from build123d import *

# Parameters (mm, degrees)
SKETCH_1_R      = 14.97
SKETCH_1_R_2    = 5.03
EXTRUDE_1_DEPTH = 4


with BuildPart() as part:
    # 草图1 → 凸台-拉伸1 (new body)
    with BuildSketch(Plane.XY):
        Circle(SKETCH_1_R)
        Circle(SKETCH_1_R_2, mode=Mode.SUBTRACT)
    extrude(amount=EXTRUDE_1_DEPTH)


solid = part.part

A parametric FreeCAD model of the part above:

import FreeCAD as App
import Part
import Sketcher

V = App.Vector

doc = App.newDocument("Part")
params = doc.addObject("Spreadsheet::Sheet", "Params")
for row, (alias, value) in enumerate([
    ("sketch1_diameter", "29.94 mm"),
    ("sketch1_diameter2", "10.06 mm"),
    ("pad1_length", "4 mm"),
], start=1):
    params.set(f"A{row}", alias)
    params.set(f"B{row}", "=" + value)
    params.setAlias(f"B{row}", alias)

body = doc.addObject("PartDesign::Body", "Body")

# Sketch on XY plane
sketch1 = body.newObject("Sketcher::SketchObject", "Sketch")
sketch1.AttachmentSupport = (doc.getObject("XY_Plane"), [""])
sketch1.MapMode = "FlatFace"
sketch1.addGeometry(Part.Circle(V(0, 0, 0), V(0, 0, 1), 14.97), False)
sketch1.addGeometry(Part.Circle(V(0, 0, 0), V(0, 0, 1), 5.03), False)
sketch1.addConstraint(Sketcher.Constraint("Coincident", 0, 3, -1, 1))
sketch1.addConstraint(Sketcher.Constraint("Coincident", 1, 3, -1, 1))
sketch1.addConstraint(Sketcher.Constraint("Diameter", 0, 29.94))
sketch1.addConstraint(Sketcher.Constraint("Diameter", 1, 10.06))
sketch1.setExpression("Constraints[2]", "Params.sketch1_diameter")
sketch1.setExpression("Constraints[3]", "Params.sketch1_diameter2")
pad1 = body.newObject("PartDesign::Pad", "Pad")
pad1.Profile = sketch1
pad1.setExpression("Length", "Params.pad1_length")

doc.recompute()
